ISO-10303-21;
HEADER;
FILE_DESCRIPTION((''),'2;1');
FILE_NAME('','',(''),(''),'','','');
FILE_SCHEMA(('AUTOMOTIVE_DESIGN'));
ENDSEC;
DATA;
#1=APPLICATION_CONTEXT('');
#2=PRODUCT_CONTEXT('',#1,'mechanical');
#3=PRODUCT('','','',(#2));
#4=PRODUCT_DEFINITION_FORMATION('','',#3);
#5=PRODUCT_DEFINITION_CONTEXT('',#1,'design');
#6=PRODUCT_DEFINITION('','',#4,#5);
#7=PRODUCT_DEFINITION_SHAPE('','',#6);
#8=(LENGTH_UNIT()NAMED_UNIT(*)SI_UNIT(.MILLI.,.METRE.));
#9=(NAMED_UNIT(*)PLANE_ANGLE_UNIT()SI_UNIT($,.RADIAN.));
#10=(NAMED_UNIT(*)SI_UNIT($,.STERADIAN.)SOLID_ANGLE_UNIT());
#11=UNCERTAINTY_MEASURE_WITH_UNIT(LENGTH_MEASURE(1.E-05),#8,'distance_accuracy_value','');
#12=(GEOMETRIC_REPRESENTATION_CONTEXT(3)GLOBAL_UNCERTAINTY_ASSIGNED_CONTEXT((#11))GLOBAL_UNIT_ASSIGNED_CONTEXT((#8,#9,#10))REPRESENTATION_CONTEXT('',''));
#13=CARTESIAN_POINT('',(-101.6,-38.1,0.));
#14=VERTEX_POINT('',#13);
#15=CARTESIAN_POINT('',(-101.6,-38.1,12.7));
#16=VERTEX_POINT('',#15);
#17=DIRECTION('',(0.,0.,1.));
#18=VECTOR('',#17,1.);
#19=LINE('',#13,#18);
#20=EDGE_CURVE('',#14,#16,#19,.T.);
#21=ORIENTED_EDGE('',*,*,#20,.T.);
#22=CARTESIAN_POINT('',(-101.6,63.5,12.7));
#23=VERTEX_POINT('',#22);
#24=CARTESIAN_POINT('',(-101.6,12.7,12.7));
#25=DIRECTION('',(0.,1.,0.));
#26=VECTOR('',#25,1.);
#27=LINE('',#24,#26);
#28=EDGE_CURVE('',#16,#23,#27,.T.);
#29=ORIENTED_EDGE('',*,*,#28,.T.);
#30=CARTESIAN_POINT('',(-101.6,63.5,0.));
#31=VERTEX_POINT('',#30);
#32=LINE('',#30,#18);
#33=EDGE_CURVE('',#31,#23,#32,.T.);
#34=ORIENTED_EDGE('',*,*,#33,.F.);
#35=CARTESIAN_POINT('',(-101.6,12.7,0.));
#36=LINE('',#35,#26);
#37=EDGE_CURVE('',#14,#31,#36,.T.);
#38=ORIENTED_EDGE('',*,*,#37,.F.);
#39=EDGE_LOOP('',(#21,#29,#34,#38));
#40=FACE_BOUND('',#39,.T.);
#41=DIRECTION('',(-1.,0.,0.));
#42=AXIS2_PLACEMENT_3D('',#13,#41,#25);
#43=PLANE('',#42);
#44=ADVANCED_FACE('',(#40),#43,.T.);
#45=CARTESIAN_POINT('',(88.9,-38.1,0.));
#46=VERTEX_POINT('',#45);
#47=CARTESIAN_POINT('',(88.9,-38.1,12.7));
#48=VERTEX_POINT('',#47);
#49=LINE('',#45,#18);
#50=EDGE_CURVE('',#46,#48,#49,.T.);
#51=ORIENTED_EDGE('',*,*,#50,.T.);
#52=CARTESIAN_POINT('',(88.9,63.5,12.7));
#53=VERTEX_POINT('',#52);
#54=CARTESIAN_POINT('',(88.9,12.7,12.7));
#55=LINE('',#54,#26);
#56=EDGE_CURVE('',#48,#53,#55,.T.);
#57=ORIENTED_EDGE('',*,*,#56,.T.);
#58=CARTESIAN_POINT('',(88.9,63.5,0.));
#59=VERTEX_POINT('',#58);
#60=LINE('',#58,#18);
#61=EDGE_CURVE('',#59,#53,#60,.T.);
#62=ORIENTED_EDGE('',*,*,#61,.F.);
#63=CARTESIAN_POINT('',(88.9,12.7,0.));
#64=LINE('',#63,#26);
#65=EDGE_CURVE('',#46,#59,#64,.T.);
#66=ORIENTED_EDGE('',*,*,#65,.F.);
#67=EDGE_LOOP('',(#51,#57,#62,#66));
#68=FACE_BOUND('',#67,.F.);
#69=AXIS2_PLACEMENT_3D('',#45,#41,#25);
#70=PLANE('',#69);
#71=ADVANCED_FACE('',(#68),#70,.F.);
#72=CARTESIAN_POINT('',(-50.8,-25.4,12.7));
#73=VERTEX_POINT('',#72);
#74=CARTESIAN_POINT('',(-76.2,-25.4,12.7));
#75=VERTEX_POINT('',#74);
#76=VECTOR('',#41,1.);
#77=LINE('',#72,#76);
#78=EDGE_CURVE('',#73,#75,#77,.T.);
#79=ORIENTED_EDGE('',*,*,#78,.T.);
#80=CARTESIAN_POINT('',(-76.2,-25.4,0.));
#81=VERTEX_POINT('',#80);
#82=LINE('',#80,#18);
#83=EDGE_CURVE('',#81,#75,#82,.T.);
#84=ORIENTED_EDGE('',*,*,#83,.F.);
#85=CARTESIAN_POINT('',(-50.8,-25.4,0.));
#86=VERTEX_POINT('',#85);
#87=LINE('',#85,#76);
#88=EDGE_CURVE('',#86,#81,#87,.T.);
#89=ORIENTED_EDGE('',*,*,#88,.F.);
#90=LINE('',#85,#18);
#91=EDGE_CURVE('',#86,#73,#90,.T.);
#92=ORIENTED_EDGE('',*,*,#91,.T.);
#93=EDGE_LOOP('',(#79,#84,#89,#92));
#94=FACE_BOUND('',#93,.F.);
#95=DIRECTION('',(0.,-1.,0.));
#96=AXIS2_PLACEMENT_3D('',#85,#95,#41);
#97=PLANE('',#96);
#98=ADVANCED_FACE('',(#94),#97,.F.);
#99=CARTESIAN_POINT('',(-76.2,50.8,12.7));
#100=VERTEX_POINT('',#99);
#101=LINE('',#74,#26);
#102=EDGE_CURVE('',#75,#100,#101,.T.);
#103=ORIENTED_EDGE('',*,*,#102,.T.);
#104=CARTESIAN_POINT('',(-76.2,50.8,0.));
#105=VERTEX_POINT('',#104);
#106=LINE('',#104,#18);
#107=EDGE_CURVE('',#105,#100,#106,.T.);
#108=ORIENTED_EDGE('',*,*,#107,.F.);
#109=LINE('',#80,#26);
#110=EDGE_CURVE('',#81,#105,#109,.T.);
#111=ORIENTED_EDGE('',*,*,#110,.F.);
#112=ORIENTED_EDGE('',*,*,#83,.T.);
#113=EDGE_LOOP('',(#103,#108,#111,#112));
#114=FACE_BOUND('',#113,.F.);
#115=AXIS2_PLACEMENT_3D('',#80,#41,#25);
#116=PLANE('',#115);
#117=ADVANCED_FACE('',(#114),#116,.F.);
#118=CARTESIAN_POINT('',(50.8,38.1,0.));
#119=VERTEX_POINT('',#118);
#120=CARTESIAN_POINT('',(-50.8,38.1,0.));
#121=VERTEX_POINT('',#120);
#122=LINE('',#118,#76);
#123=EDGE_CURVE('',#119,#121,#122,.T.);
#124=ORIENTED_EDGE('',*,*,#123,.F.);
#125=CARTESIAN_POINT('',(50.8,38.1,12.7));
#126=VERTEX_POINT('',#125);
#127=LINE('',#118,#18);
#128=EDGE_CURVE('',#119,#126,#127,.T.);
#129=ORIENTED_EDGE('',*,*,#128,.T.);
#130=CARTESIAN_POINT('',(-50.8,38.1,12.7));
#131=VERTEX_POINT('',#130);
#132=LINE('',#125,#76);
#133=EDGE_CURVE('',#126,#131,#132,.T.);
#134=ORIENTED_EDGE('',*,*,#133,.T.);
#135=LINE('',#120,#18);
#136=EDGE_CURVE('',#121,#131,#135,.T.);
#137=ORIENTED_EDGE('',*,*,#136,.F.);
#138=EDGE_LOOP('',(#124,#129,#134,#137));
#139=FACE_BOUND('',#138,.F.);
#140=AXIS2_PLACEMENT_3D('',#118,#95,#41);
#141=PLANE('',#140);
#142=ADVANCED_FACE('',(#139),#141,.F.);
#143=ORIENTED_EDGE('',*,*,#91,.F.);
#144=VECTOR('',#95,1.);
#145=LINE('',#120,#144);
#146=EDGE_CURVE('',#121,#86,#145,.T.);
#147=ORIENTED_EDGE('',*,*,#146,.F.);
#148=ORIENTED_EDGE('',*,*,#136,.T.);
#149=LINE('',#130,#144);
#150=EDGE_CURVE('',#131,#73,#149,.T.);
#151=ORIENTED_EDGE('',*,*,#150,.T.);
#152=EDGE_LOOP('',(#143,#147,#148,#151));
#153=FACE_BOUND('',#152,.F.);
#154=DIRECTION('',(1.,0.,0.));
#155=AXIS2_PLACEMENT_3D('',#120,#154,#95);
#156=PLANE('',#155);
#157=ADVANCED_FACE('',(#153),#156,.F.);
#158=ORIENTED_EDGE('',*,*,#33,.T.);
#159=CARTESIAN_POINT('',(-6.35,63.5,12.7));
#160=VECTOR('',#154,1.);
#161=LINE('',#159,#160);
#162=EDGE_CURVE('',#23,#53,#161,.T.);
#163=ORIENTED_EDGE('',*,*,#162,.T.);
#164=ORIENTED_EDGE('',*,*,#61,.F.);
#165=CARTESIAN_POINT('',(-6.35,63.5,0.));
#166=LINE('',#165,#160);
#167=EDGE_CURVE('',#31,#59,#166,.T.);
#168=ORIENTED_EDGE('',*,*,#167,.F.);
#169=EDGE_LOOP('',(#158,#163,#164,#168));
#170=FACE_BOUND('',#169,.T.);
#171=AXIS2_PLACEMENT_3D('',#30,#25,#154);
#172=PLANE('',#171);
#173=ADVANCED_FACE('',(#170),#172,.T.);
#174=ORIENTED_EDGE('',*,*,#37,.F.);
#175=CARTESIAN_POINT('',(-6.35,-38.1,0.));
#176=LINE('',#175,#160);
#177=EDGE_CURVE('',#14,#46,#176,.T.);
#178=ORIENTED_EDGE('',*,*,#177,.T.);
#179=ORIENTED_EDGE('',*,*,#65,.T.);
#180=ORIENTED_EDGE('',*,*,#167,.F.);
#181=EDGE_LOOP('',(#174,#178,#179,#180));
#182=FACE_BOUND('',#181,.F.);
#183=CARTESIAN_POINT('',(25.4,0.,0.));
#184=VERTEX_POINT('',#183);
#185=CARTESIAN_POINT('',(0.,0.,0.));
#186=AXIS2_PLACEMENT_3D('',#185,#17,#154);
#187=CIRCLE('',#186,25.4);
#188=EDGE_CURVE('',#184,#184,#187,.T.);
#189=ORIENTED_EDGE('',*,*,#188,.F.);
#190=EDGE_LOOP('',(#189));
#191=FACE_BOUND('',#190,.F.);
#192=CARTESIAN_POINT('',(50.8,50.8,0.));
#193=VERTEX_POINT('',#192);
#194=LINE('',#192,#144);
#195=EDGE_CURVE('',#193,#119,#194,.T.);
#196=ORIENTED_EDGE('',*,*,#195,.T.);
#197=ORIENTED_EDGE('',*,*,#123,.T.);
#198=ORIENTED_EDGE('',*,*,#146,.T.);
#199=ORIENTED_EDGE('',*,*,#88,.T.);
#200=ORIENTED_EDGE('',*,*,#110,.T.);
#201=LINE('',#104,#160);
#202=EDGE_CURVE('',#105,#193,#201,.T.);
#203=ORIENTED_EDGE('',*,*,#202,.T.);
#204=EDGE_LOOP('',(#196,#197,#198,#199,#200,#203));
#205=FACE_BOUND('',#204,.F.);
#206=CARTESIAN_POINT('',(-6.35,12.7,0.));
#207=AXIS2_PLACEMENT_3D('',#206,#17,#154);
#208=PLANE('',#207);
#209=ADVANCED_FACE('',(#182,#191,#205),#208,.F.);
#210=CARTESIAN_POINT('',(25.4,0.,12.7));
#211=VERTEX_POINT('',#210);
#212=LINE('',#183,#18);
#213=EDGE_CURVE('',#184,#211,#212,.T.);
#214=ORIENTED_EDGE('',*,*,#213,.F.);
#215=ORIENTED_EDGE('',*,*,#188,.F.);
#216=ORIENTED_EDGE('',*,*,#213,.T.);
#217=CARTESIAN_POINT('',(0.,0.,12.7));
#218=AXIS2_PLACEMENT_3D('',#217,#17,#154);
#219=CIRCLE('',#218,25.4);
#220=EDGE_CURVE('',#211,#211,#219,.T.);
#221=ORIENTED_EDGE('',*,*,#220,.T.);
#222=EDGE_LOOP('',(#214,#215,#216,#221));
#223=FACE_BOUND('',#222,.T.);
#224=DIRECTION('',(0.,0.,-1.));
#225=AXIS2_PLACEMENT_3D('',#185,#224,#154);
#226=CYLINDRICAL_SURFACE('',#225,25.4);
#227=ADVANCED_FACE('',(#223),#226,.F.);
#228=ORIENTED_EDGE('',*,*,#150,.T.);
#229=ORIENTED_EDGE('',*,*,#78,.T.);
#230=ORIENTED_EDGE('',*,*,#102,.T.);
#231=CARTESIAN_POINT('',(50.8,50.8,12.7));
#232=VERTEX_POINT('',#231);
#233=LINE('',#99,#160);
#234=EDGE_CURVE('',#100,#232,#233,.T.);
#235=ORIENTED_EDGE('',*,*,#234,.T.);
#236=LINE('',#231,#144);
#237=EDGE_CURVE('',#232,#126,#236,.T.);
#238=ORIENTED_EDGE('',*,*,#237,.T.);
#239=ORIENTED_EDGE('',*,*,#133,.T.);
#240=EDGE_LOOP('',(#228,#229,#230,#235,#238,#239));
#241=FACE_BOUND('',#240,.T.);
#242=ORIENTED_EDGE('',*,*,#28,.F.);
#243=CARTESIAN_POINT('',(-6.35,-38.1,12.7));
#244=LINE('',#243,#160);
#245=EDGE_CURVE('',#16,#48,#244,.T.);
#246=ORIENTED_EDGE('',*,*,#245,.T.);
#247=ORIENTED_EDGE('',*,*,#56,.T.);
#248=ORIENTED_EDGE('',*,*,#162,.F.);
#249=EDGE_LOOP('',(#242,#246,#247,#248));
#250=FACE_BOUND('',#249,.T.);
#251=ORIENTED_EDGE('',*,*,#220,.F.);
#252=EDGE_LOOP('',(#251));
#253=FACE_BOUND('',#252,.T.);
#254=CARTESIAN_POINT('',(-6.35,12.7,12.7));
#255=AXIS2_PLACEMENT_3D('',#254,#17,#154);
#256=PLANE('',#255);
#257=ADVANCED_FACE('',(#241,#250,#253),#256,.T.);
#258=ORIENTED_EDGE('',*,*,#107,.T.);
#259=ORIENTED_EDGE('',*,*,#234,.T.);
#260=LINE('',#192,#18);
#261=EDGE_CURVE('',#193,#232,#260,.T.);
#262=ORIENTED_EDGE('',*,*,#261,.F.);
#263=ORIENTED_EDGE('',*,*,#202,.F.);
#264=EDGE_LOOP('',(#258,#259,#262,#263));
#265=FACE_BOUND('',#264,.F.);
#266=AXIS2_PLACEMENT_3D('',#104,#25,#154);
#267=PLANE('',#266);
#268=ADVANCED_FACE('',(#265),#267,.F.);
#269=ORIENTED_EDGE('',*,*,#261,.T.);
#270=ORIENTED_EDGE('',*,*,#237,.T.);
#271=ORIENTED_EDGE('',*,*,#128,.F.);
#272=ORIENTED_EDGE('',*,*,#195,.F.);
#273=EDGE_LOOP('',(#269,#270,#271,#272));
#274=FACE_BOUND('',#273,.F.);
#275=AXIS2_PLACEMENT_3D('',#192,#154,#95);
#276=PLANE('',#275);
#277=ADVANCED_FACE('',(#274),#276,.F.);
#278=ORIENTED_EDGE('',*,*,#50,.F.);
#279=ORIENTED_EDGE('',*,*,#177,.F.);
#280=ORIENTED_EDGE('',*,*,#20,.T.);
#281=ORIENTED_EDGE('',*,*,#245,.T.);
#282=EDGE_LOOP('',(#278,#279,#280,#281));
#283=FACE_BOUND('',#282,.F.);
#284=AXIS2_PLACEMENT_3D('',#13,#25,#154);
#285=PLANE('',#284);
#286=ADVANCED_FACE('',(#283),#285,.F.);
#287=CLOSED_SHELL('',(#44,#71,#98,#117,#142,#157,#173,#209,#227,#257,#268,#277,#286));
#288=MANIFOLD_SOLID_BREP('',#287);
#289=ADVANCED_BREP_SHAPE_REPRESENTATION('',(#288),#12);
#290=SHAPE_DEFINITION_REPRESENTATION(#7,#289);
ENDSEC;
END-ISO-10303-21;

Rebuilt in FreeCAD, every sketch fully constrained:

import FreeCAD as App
import Part
import Sketcher
from FreeCAD import Vector
Q = App.Units.Quantity

doc = App.newDocument("Part")
body = doc.addObject("PartDesign::Body", "Body")

sketch1 = body.newObject("Sketcher::SketchObject", "Sketch")
sketch1.AttachmentSupport = (doc.getObject("XY_Plane"), [""])
sketch1.MapMode = "FlatFace"
sketch1.addGeometry([
    Part.LineSegment(Vector(-102, 64, 0), Vector(-102, -38, 0)),
    Part.LineSegment(Vector(-102, -38, 0), Vector(89, -38, 0)),
    Part.LineSegment(Vector(89, -38, 0), Vector(89, 64, 0)),
    Part.LineSegment(Vector(89, 64, 0), Vector(-102, 64, 0)),
    Part.Circle(Vector(0, 0, 0), Vector(0, 0, 1), 25),
    Part.LineSegment(Vector(-51, -25, 0), Vector(-76, -25, 0)),
    Part.LineSegment(Vector(-76, -25, 0), Vector(-76, 51, 0)),
    Part.LineSegment(Vector(-76, 51, 0), Vector(51, 51, 0)),
    Part.LineSegment(Vector(51, 51, 0), Vector(51, 38, 0)),
    Part.LineSegment(Vector(51, 38, 0), Vector(-51, 38, 0)),
    Part.LineSegment(Vector(-51, 38, 0), Vector(-51, -25, 0)),
], False)
sketch1.addConstraint([
    Sketcher.Constraint("Coincident", 0, 2, 1, 1),
    Sketcher.Constraint("Coincident", 1, 2, 2, 1),
    Sketcher.Constraint("Coincident", 2, 2, 3, 1),
    Sketcher.Constraint("Coincident", 3, 2, 0, 1),
    Sketcher.Constraint("Coincident", 5, 2, 6, 1),
    Sketcher.Constraint("Coincident", 6, 2, 7, 1),
    Sketcher.Constraint("Coincident", 7, 2, 8, 1),
    Sketcher.Constraint("Coincident", 8, 2, 9, 1),
    Sketcher.Constraint("Coincident", 9, 2, 10, 1),
    Sketcher.Constraint("Coincident", 10, 2, 5, 1),
    Sketcher.Constraint("Vertical", 0),
    Sketcher.Constraint("Horizontal", 1),
    Sketcher.Constraint("Vertical", 2),
    Sketcher.Constraint("Horizontal", 3),
    Sketcher.Constraint("Horizontal", 5),
    Sketcher.Constraint("Vertical", 6),
    Sketcher.Constraint("Horizontal", 7),
    Sketcher.Constraint("Vertical", 8),
    Sketcher.Constraint("Horizontal", 9),
    Sketcher.Constraint("Vertical", 10),
    Sketcher.Constraint("Coincident", 4, 3, -1, 1),
    Sketcher.Constraint("Equal", 9, 0),
    Sketcher.Constraint("Diameter", 4, Q("2 in")),
    Sketcher.Constraint("DistanceX", 5, 2, 5, 1, Q("1 in")),
    Sketcher.Constraint("DistanceX", 7, 1, 7, 2, Q("5 in")),
    Sketcher.Constraint("DistanceY", 6, 1, 6, 2, Q("3 in")),
    Sketcher.Constraint("DistanceX", 1, 1, 1, 2, Q("7.5 in")),
    Sketcher.Constraint("DistanceY", 8, 2, 8, 1, Q("0.5 in")),
    Sketcher.Constraint("DistanceX", 0, 2, -1, 1, Q("4 in")),
    Sketcher.Constraint("DistanceX", 5, 2, -1, 1, Q("3 in")),
    Sketcher.Constraint("DistanceY", 5, 2, -1, 1, Q("1 in")),
    Sketcher.Constraint("DistanceY", 8, 2, 2, 2, Q("1 in")),
])
pad1 = body.newObject("PartDesign::Pad", "Pad")
pad1.Profile = sketch1
pad1.Length = Q("0.5 in")

doc.recompute()
